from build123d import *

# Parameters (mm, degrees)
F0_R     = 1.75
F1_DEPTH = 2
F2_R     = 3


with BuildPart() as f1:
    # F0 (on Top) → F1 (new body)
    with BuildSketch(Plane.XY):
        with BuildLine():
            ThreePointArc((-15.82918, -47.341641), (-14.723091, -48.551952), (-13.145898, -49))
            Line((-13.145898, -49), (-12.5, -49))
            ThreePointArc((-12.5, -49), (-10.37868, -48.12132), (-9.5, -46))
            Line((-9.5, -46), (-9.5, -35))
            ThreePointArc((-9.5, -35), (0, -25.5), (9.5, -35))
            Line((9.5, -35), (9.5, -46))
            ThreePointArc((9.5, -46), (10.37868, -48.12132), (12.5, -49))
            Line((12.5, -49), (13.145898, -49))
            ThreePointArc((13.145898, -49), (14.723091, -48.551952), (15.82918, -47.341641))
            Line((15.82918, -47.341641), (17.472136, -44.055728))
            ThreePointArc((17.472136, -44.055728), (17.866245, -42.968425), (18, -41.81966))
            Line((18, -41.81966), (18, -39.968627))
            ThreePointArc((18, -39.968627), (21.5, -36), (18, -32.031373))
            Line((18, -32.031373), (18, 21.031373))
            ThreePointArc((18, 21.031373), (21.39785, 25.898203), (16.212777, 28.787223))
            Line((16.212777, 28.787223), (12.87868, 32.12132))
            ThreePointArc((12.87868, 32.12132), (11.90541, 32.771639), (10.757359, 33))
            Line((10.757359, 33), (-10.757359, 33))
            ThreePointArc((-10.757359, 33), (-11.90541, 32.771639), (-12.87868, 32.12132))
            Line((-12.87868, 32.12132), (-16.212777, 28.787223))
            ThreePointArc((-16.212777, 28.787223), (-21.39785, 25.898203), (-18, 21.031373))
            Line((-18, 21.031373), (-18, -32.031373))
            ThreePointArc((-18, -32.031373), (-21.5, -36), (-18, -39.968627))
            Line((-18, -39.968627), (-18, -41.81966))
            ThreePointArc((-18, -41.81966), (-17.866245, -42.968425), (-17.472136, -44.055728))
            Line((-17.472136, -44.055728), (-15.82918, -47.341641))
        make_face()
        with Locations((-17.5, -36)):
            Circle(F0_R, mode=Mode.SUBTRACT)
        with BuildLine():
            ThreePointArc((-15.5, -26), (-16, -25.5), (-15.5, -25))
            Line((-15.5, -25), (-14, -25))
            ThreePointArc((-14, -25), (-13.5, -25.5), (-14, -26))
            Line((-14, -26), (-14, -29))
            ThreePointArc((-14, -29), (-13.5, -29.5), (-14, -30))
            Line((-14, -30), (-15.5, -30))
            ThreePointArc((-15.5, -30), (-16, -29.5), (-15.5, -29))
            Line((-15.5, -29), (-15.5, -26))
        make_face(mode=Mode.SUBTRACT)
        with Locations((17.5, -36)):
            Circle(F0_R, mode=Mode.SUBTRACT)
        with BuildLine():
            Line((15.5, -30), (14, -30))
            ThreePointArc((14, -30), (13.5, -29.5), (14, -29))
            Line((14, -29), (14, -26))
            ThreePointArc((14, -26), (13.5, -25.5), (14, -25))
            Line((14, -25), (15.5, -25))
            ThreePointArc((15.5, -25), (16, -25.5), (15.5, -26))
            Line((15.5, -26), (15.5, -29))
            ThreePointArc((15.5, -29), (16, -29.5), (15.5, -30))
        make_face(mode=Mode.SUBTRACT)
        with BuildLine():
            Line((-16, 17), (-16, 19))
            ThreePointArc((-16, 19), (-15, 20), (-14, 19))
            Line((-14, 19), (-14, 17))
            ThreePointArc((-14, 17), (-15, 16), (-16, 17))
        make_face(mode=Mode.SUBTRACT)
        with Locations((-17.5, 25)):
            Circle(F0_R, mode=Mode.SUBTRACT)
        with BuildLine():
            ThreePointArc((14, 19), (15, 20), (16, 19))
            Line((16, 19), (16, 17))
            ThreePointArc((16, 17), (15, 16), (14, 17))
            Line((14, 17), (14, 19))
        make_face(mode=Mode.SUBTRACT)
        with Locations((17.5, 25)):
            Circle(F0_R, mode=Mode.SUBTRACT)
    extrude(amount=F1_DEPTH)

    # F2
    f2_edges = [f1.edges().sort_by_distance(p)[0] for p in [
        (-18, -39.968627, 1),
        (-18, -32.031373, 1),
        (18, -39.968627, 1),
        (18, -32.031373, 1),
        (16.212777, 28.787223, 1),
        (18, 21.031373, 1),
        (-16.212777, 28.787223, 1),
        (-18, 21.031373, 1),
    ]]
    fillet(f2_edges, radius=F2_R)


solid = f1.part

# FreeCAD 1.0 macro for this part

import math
import FreeCAD as App
import Part
import Sketcher


def edges_at(feature, points):
    """Names of the edges that pass closest to the given points."""
    edges = feature.Shape.Edges
    near = lambda p: min(range(len(edges)), key=lambda i: edges[i].distToShape(Part.Vertex(*p))[0])
    return sorted({f"Edge{near(p) + 1}" for p in points})

doc = App.newDocument("Part")
params = doc.addObject("Spreadsheet::Sheet", "Params")
for row, (alias, value) in enumerate([
    ("sketch1_radius", "3.000001 mm"),
    ("sketch1_radius2", "4 mm"),
    ("sketch1_radius3", "1 mm"),
    ("sketch1_diameter", "3.5 mm"),
    ("sketch1_radius4", "9.5 mm"),
    ("pad1_length", "2 mm"),
    ("fillet_radius", "3 mm"),
], start=1):
    params.set(f"A{row}", alias)
    params.set(f"B{row}", "=" + value)
    params.setAlias(f"B{row}", alias)

body = doc.addObject("PartDesign::Body", "Body")

# Sketch on XY plane
sketch1 = body.newObject("Sketcher::SketchObject", "Sketch")
sketch1.AttachmentSupport = (doc.getObject("XY_Plane"), [""])
sketch1.MapMode = "FlatFace"
sketch1.addGeometry([
    Part.ArcOfCircle(Part.Circle(App.Vector(-13.1, -46, 0), App.Vector(0, 0, 1), 3), math.radians(-153), math.radians(-90)),  # 0
    Part.LineSegment(App.Vector(-13.1, -49, 0), App.Vector(-12.5, -49, 0)),  # 1
    Part.ArcOfCircle(Part.Circle(App.Vector(-12.5, -46, 0), App.Vector(0, 0, 1), 3), math.radians(-90), math.radians(0)),  # 2
    Part.LineSegment(App.Vector(-9.5, -46, 0), App.Vector(-9.5, -35, 0)),  # 3
    Part.ArcOfCircle(Part.Circle(App.Vector(0, -35, 0), App.Vector(0, 0, 1), 9.5), math.radians(0), math.radians(180)),  # 4
    Part.LineSegment(App.Vector(9.5, -35, 0), App.Vector(9.5, -46, 0)),  # 5
    Part.ArcOfCircle(Part.Circle(App.Vector(12.5, -46, 0), App.Vector(0, 0, 1), 3), math.radians(-180), math.radians(-90)),  # 6
    Part.LineSegment(App.Vector(12.5, -49, 0), App.Vector(13.1, -49, 0)),  # 7
    Part.ArcOfCircle(Part.Circle(App.Vector(13.1, -46, 0), App.Vector(0, 0, 1), 3), math.radians(-90), math.radians(-27)),  # 8
    Part.LineSegment(App.Vector(15.8, -47.3, 0), App.Vector(17.5, -44.1, 0)),  # 9
    Part.ArcOfCircle(Part.Circle(App.Vector(13, -41.8, 0), App.Vector(0, 0, 1), 5), math.radians(-27), math.radians(0)),  # 10
    Part.LineSegment(App.Vector(18, -41.8, 0), App.Vector(18, -40, 0)),  # 11
    Part.ArcOfCircle(Part.Circle(App.Vector(17.5, -36, 0), App.Vector(0, 0, 1), 4), math.radians(-83), math.radians(83)),  # 12
    Part.LineSegment(App.Vector(18, -32, 0), App.Vector(18, 21, 0)),  # 13
    Part.ArcOfCircle(Part.Circle(App.Vector(17.5, 25, 0), App.Vector(0, 0, 1), 4), math.radians(-83), math.radians(109)),  # 14
    Part.LineSegment(App.Vector(16.2, 28.8, 0), App.Vector(12.9, 32.1, 0)),  # 15
    Part.ArcOfCircle(Part.Circle(App.Vector(10.8, 30, 0), App.Vector(0, 0, 1), 3), math.radians(45), math.radians(90)),  # 16
    Part.LineSegment(App.Vector(10.8, 33, 0), App.Vector(-10.8, 33, 0)),  # 17
    Part.ArcOfCircle(Part.Circle(App.Vector(-10.8, 30, 0), App.Vector(0, 0, 1), 3), math.radians(90), math.radians(135)),  # 18
    Part.LineSegment(App.Vector(-12.9, 32.1, 0), App.Vector(-16.2, 28.8, 0)),  # 19
    Part.ArcOfCircle(Part.Circle(App.Vector(-17.5, 25, 0), App.Vector(0, 0, 1), 4), math.radians(71), math.radians(263)),  # 20
    Part.LineSegment(App.Vector(-18, 21, 0), App.Vector(-18, -32, 0)),  # 21
    Part.ArcOfCircle(Part.Circle(App.Vector(-17.5, -36, 0), App.Vector(0, 0, 1), 4), math.radians(97), math.radians(263)),  # 22
    Part.LineSegment(App.Vector(-18, -40, 0), App.Vector(-18, -41.8, 0)),  # 23
    Part.ArcOfCircle(Part.Circle(App.Vector(-13, -41.8, 0), App.Vector(0, 0, 1), 5), math.radians(180), math.radians(207)),  # 24
    Part.LineSegment(App.Vector(-17.5, -44.1, 0), App.Vector(-15.8, -47.3, 0)),  # 25
    Part.Circle(App.Vector(-17.5, -36, 0), App.Vector(0, 0, 1), 1.8),  # 26
    Part.LineSegment(App.Vector(-15.5, -29, 0), App.Vector(-15.5, -26, 0)),  # 27
    Part.ArcOfCircle(Part.Circle(App.Vector(-15.5, -25.5, 0), App.Vector(0, 0, 1), 0.5), math.radians(90), math.radians(270)),  # 28
    Part.LineSegment(App.Vector(-15.5, -25, 0), App.Vector(-14, -25, 0)),  # 29
    Part.ArcOfCircle(Part.Circle(App.Vector(-14, -25.5, 0), App.Vector(0, 0, 1), 0.5), math.radians(-90), math.radians(90)),  # 30
    Part.LineSegment(App.Vector(-14, -26, 0), App.Vector(-14, -29, 0)),  # 31
    Part.ArcOfCircle(Part.Circle(App.Vector(-14, -29.5, 0), App.Vector(0, 0, 1), 0.5), math.radians(-90), math.radians(90)),  # 32
    Part.LineSegment(App.Vector(-14, -30, 0), App.Vector(-15.5, -30, 0)),  # 33
    Part.ArcOfCircle(Part.Circle(App.Vector(-15.5, -29.5, 0), App.Vector(0, 0, 1), 0.5), math.radians(90), math.radians(270)),  # 34
    Part.Circle(App.Vector(17.5, -36, 0), App.Vector(0, 0, 1), 1.8),  # 35
    Part.ArcOfCircle(Part.Circle(App.Vector(15.5, -29.5, 0), App.Vector(0, 0, 1), 0.5), math.radians(-90), math.radians(90)),  # 36
    Part.LineSegment(App.Vector(15.5, -30, 0), App.Vector(14, -30, 0)),  # 37
    Part.ArcOfCircle(Part.Circle(App.Vector(14, -29.5, 0), App.Vector(0, 0, 1), 0.5), math.radians(90), math.radians(270)),  # 38
    Part.LineSegment(App.Vector(14, -29, 0), App.Vector(14, -26, 0)),  # 39
    Part.ArcOfCircle(Part.Circle(App.Vector(14, -25.5, 0), App.Vector(0, 0, 1), 0.5), math.radians(90), math.radians(270)),  # 40
    Part.LineSegment(App.Vector(14, -25, 0), App.Vector(15.5, -25, 0)),  # 41
    Part.ArcOfCircle(Part.Circle(App.Vector(15.5, -25.5, 0), App.Vector(0, 0, 1), 0.5), math.radians(-90), math.radians(90)),  # 42
    Part.LineSegment(App.Vector(15.5, -26, 0), App.Vector(15.5, -29, 0)),  # 43
    Part.ArcOfCircle(Part.Circle(App.Vector(-15, 17, 0), App.Vector(0, 0, 1), 1), math.radians(180), math.radians(360)),  # 44
    Part.LineSegment(App.Vector(-16, 17, 0), App.Vector(-16, 19, 0)),  # 45
    Part.ArcOfCircle(Part.Circle(App.Vector(-15, 19, 0), App.Vector(0, 0, 1), 1), math.radians(0), math.radians(180)),  # 46
    Part.LineSegment(App.Vector(-14, 19, 0), App.Vector(-14, 17, 0)),  # 47
    Part.Circle(App.Vector(-17.5, 25, 0), App.Vector(0, 0, 1), 1.8),  # 48
    Part.LineSegment(App.Vector(14, 17, 0), App.Vector(14, 19, 0)),  # 49
    Part.ArcOfCircle(Part.Circle(App.Vector(15, 19, 0), App.Vector(0, 0, 1), 1), math.radians(0), math.radians(180)),  # 50
    Part.LineSegment(App.Vector(16, 19, 0), App.Vector(16, 17, 0)),  # 51
    Part.ArcOfCircle(Part.Circle(App.Vector(15, 17, 0), App.Vector(0, 0, 1), 1), math.radians(180), math.radians(360)),  # 52
    Part.Circle(App.Vector(17.5, 25, 0), App.Vector(0, 0, 1), 1.8),  # 53
], False)
sketch1.addConstraint([
    Sketcher.Constraint("Tangent", 0, 2, 1, 1),
    Sketcher.Constraint("Tangent", 1, 2, 2, 1),
    Sketcher.Constraint("Tangent", 2, 2, 3, 1),
    Sketcher.Constraint("Tangent", 3, 2, 4, 2),
    Sketcher.Constraint("Tangent", 4, 1, 5, 1),
    Sketcher.Constraint("Tangent", 5, 2, 6, 1),
    Sketcher.Constraint("Tangent", 6, 2, 7, 1),
    Sketcher.Constraint("Tangent", 7, 2, 8, 1),
    Sketcher.Constraint("Tangent", 8, 2, 9, 1),
    Sketcher.Constraint("Tangent", 9, 2, 10, 1),
    Sketcher.Constraint("Tangent", 10, 2, 11, 1),
    Sketcher.Constraint("Coincident", 11, 2, 12, 1),
    Sketcher.Constraint("Coincident", 12, 2, 13, 1),
    Sketcher.Constraint("Coincident", 13, 2, 14, 1),
    Sketcher.Constraint("Coincident", 14, 2, 15, 1),
    Sketcher.Constraint("Tangent", 15, 2, 16, 1),
    Sketcher.Constraint("Tangent", 16, 2, 17, 1),
    Sketcher.Constraint("Tangent", 17, 2, 18, 1),
    Sketcher.Constraint("Tangent", 18, 2, 19, 1),
    Sketcher.Constraint("Coincident", 19, 2, 20, 1),
    Sketcher.Constraint("Coincident", 20, 2, 21, 1),
    Sketcher.Constraint("Coincident", 21, 2, 22, 1),
    Sketcher.Constraint("Coincident", 22, 2, 23, 1),
    Sketcher.Constraint("Tangent", 23, 2, 24, 1),
    Sketcher.Constraint("Tangent", 24, 2, 25, 1),
    Sketcher.Constraint("Tangent", 25, 2, 0, 1),
    Sketcher.Constraint("Coincident", 27, 2, 28, 2),
    Sketcher.Constraint("Tangent", 28, 1, 29, 1),
    Sketcher.Constraint("Tangent", 29, 2, 30, 2),
    Sketcher.Constraint("Coincident", 30, 1, 31, 1),
    Sketcher.Constraint("Coincident", 31, 2, 32, 2),
    Sketcher.Constraint("Tangent", 32, 1, 33, 1),
    Sketcher.Constraint("Tangent", 33, 2, 34, 2),
    Sketcher.Constraint("Coincident", 34, 1, 27, 1),
    Sketcher.Constraint("Tangent", 36, 1, 37, 1),
    Sketcher.Constraint("Tangent", 37, 2, 38, 2),
    Sketcher.Constraint("Coincident", 38, 1, 39, 1),
    Sketcher.Constraint("Coincident", 39, 2, 40, 2),
    Sketcher.Constraint("Tangent", 40, 1, 41, 1),
    Sketcher.Constraint("Tangent", 41, 2, 42, 2),
    Sketcher.Constraint("Coincident", 42, 1, 43, 1),
    Sketcher.Constraint("Coincident", 43, 2, 36, 2),
    Sketcher.Constraint("Tangent", 44, 1, 45, 1),
    Sketcher.Constraint("Tangent", 45, 2, 46, 2),
    Sketcher.Constraint("Tangent", 46, 1, 47, 1),
    Sketcher.Constraint("Tangent", 47, 2, 44, 2),
    Sketcher.Constraint("Tangent", 49, 2, 50, 2),
    Sketcher.Constraint("Tangent", 50, 1, 51, 1),
    Sketcher.Constraint("Tangent", 51, 2, 52, 2),
    Sketcher.Constraint("Tangent", 52, 1, 49, 1),
    Sketcher.Constraint("Horizontal", 1),
    Sketcher.Constraint("Vertical", 3),
    Sketcher.Constraint("Vertical", 5),
    Sketcher.Constraint("Horizontal", 7),
    Sketcher.Constraint("Vertical", 11),
    Sketcher.Constraint("Vertical", 13),
    Sketcher.Constraint("Horizontal", 17),
    Sketcher.Constraint("Vertical", 21),
    Sketcher.Constraint("Vertical", 23),
    Sketcher.Constraint("Vertical", 27),
    Sketcher.Constraint("Horizontal", 29),
    Sketcher.Constraint("Vertical", 31),
    Sketcher.Constraint("Horizontal", 33),
    Sketcher.Constraint("Horizontal", 37),
    Sketcher.Constraint("Vertical", 39),
    Sketcher.Constraint("Horizontal", 41),
    Sketcher.Constraint("Vertical", 43),
    Sketcher.Constraint("Vertical", 45),
    Sketcher.Constraint("Vertical", 47),
    Sketcher.Constraint("Vertical", 49),
    Sketcher.Constraint("Vertical", 51),
    Sketcher.Constraint("Coincident", 26, 3, 22, 3),
    Sketcher.Constraint("Coincident", 35, 3, 12, 3),
    Sketcher.Constraint("Coincident", 48, 3, 20, 3),
    Sketcher.Constraint("Coincident", 53, 3, 14, 3),
    Sketcher.Constraint("Equal", 2, 6),
    Sketcher.Constraint("Equal", 0, 8),
    Sketcher.Constraint("Equal", 12, 14),
    Sketcher.Constraint("Equal", 16, 18),
    Sketcher.Constraint("Equal", 14, 20),
    Sketcher.Constraint("Equal", 20, 22),
    Sketcher.Constraint("Equal", 10, 24),
    Sketcher.Constraint("Equal", 28, 30),
    Sketcher.Constraint("Equal", 30, 32),
    Sketcher.Constraint("Equal", 32, 34),
    Sketcher.Constraint("Equal", 26, 35),
    Sketcher.Constraint("Equal", 34, 36),
    Sketcher.Constraint("Equal", 36, 38),
    Sketcher.Constraint("Equal", 38, 40),
    Sketcher.Constraint("Equal", 40, 42),
    Sketcher.Constraint("Equal", 35, 48),
    Sketcher.Constraint("Equal", 46, 50),
    Sketcher.Constraint("Equal", 48, 53),
    Sketcher.Constraint("Symmetric", 2, 3, 6, 3, -2),
    Sketcher.Constraint("Symmetric", 14, 3, 20, 3, -2),
    Sketcher.Constraint("Symmetric", 12, 3, 22, 3, -2),
    Sketcher.Constraint("Symmetric", 10, 3, 24, 3, -2),
    Sketcher.Constraint("Symmetric", 34, 3, 36, 3, -2),
    Sketcher.Constraint("Symmetric", 30, 3, 40, 3, -2),
    Sketcher.Constraint("Symmetric", 46, 3, 50, 3, -2),
    Sketcher.Constraint("Symmetric", 15, 2, 18, 2, -2),
    Sketcher.Constraint("Perpendicular", 15, 19),
    Sketcher.Constraint("Horizontal", 44, 3, 52, 3),
    Sketcher.Constraint("Horizontal", 13, 2, 20, 2),
    Sketcher.Constraint("Horizontal", 9, 2, 24, 2),
    Sketcher.Constraint("Vertical", 12, 3, 14, 3),
    Sketcher.Constraint("Vertical", 30, 3, 32, 3),
    Sketcher.Constraint("Vertical", 28, 3, 34, 3),
    Sketcher.Constraint("Vertical", 38, 3, 40, 3),
    Sketcher.Constraint("Vertical", 36, 3, 42, 3),
    Sketcher.Constraint("Vertical", 11, 2, 12, 2),
    Sketcher.Constraint("Vertical", 34, 3, 27, 2),
    Sketcher.Constraint("Vertical", 29, 2, 30, 1),
    Sketcher.Constraint("Vertical", 37, 2, 38, 1),
    Sketcher.Constraint("Vertical", 41, 2, 42, 1),
    Sketcher.Constraint("Vertical", 32, 1, 46, 1),
    Sketcher.Constraint("Radius", 2, 3.000001),
    Sketcher.Constraint("Radius", 12, 4.0),
    Sketcher.Constraint("Radius", 44, 1.0),
    Sketcher.Constraint("Diameter", 26, 3.5),
    Sketcher.Constraint("Radius", 4, 9.5),
    Sketcher.Constraint("Radius", 28, 0.5),
    Sketcher.Constraint("DistanceY", 3, 1, 3, 2, 11.0),
    Sketcher.Constraint("DistanceY", 27, 1, 27, 2, 3.0),
    Sketcher.Constraint("DistanceY", 45, 1, 45, 2, 2.0),
    Sketcher.Constraint("DistanceX", 29, 1, 29, 2, 1.5),
    Sketcher.Constraint("DistanceY", 2, 3, -1, 1, 45.999999),
    Sketcher.Constraint("DistanceY", 12, 3, -1, 1, 36.0),
    Sketcher.Constraint("DistanceY", -1, 1, 14, 3, 25.0),
    Sketcher.Constraint("DistanceX", 30, 3, -1, 1, 14.0),
    Sketcher.Constraint("DistanceY", -1, 1, 44, 3, 17.0),
    Sketcher.Constraint("DistanceX", -1, 1, 10, 2, 18.0),
    Sketcher.Constraint("DistanceY", -1, 1, 16, 2, 33.0),
    Sketcher.Constraint("DistanceY", 27, 2, -1, 1, 26.0),
    Sketcher.Constraint("DistanceX", -1, 1, 12, 3, 17.5),
    Sketcher.Constraint("DistanceX", 1, 1, 1, 2, 0.645898),
    Sketcher.Constraint("Radius", 0, 3.000005),
    Sketcher.Constraint("Radius", 10, 4.999996),
    Sketcher.Constraint("Radius", 16, 2.999994),
    Sketcher.Constraint("DistanceX", 17, 2, 17, 1, 21.514718),
    Sketcher.Constraint("DistanceY", 11, 1, 11, 2, 1.851033),
])
sketch1.setExpression("Constraints[116]", "Params.sketch1_radius")
sketch1.setExpression("Constraints[117]", "Params.sketch1_radius2")
sketch1.setExpression("Constraints[118]", "Params.sketch1_radius3")
sketch1.setExpression("Constraints[119]", "Params.sketch1_diameter")
sketch1.setExpression("Constraints[120]", "Params.sketch1_radius4")
pad1 = body.newObject("PartDesign::Pad", "Pad")
pad1.Profile = sketch1
pad1.setExpression("Length", "Params.pad1_length")
doc.recompute()

fillet = body.newObject("PartDesign::Fillet", "Fillet")
fillet.Base = (pad1, edges_at(pad1, [
    (-18, -39.969, 1),
    (-18, -32.031, 1),
    (18, -39.969, 1),
    (18, -32.031, 1),
    (16.213, 28.787, 1),
    (18, 21.031, 1),
    (-16.213, 28.787, 1),
    (-18, 21.031, 1),
]))
fillet.setExpression("Radius", "Params.fillet_radius")

doc.recompute()
